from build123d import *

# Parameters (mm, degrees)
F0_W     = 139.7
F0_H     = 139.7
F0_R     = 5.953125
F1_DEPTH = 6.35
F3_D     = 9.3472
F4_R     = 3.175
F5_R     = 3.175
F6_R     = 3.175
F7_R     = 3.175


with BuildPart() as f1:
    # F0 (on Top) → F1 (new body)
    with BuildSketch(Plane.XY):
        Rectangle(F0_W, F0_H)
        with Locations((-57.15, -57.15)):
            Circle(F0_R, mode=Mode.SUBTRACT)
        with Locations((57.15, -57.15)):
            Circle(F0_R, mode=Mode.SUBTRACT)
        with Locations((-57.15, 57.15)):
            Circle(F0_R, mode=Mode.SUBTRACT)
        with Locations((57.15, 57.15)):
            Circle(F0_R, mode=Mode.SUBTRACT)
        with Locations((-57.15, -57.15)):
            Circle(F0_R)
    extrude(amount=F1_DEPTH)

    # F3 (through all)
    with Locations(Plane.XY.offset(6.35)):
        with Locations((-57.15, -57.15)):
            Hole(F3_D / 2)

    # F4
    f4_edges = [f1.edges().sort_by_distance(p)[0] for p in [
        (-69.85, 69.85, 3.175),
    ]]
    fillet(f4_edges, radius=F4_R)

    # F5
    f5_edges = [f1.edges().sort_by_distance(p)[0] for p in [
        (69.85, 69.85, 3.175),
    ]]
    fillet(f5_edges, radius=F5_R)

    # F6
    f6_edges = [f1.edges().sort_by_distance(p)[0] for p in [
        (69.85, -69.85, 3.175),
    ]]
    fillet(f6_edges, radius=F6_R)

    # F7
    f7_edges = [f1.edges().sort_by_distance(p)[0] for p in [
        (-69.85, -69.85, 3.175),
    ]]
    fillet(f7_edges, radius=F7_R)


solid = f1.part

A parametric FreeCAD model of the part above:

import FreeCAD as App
import Part
import Sketcher

V = App.Vector
Q = App.Units.Quantity


def edges_at(feature, points):
    """Names of the edges that pass closest to the given points."""
    edges = feature.Shape.Edges
    near = lambda p: min(range(len(edges)), key=lambda i: edges[i].distToShape(Part.Vertex(*p))[0])
    return sorted({f"Edge{near(p) + 1}" for p in points})

doc = App.newDocument("Part")
body = doc.addObject("PartDesign::Body", "Body")

# Sketch on XY plane
sketch1 = body.newObject("Sketcher::SketchObject", "Sketch")
sketch1.AttachmentSupport = (doc.getObject("XY_Plane"), [""])
sketch1.MapMode = "FlatFace"
sketch1.addGeometry([
    Part.LineSegment(V(-70, 70, 0), V(-70, -70, 0)),  # 0
    Part.LineSegment(V(-70, -70, 0), V(70, -70, 0)),  # 1
    Part.LineSegment(V(70, -70, 0), V(70, 70, 0)),  # 2
    Part.LineSegment(V(70, 70, 0), V(-70, 70, 0)),  # 3
    Part.Circle(V(57, -57, 0), V(0, 0, 1), 6),  # 4
    Part.Circle(V(-57, 57, 0), V(0, 0, 1), 6),  # 5
    Part.Circle(V(57, 57, 0), V(0, 0, 1), 6),  # 6
], False)
sketch1.addConstraint([
    Sketcher.Constraint("Coincident", 0, 2, 1, 1),
    Sketcher.Constraint("Coincident", 1, 2, 2, 1),
    Sketcher.Constraint("Coincident", 2, 2, 3, 1),
    Sketcher.Constraint("Coincident", 3, 2, 0, 1),
    Sketcher.Constraint("Vertical", 0),
    Sketcher.Constraint("Horizontal", 1),
    Sketcher.Constraint("Vertical", 2),
    Sketcher.Constraint("Horizontal", 3),
    Sketcher.Constraint("Equal", 4, 5),
    Sketcher.Constraint("Equal", 5, 6),
    Sketcher.Constraint("Symmetric", 4, 3, 5, 3, -1, 1),
    Sketcher.Constraint("Symmetric", 0, 2, 2, 2, -1, 1),
    Sketcher.Constraint("Symmetric", 5, 3, 6, 3, -2),
    Sketcher.Constraint("Equal", 3, 0),
    Sketcher.Constraint("Diameter", 4, Q("0.46875 in")),
    Sketcher.Constraint("DistanceX", 1, 1, 1, 2, Q("5.5 in")),
    Sketcher.Constraint("DistanceX", 0, 2, 4, 3, Q("5 in")),
    Sketcher.Constraint("DistanceY", 0, 2, 5, 3, Q("5 in")),
])
pad1 = body.newObject("PartDesign::Pad", "Pad")
pad1.Profile = sketch1
pad1.Length = Q("0.25 in")

# Sketch on XY plane
sketch2 = body.newObject("Sketcher::SketchObject", "Sketch001")
sketch2.AttachmentSupport = (doc.getObject("XY_Plane"), [""])
sketch2.MapMode = "FlatFace"
sketch2.AttachmentOffset = App.Placement(V(0, 0, 0.25 * 25.4), App.Rotation())
sketch2.addGeometry(Part.Circle(V(-57.1, -57.1, 0), V(0, 0, 1), 4.7), False)
sketch2.addConstraint([
    Sketcher.Constraint("Diameter", 0, Q("0.368 in")),
    Sketcher.Constraint("DistanceX", 0, 3, -1, 1, Q("2.25 in")),
    Sketcher.Constraint("DistanceY", 0, 3, -1, 1, Q("2.25 in")),
])
doc.recompute()
hole = body.newObject("PartDesign::Hole", "Hole")
hole.Profile = sketch2
hole.ThreadType = "None"
hole.Diameter = Q("0.368 in")
hole.DepthType = "ThroughAll"
doc.recompute()

fillet = body.newObject("PartDesign::Fillet", "Fillet")
fillet.Base = (hole, edges_at(hole, [(-69.85, 69.85, 3.175)]))
fillet.Radius = Q("0.125 in")
doc.recompute()

fillet2 = body.newObject("PartDesign::Fillet", "Fillet001")
fillet2.Base = (fillet, edges_at(fillet, [(69.85, 69.85, 3.175)]))
fillet2.Radius = Q("0.125 in")
doc.recompute()

fillet3 = body.newObject("PartDesign::Fillet", "Fillet002")
fillet3.Base = (fillet2, edges_at(fillet2, [(69.85, -69.85, 3.175)]))
fillet3.Radius = Q("0.125 in")
doc.recompute()

fillet4 = body.newObject("PartDesign::Fillet", "Fillet003")
fillet4.Base = (fillet3, edges_at(fillet3, [(-69.85, -69.85, 3.175)]))
fillet4.Radius = Q("0.125 in")

doc.recompute()
